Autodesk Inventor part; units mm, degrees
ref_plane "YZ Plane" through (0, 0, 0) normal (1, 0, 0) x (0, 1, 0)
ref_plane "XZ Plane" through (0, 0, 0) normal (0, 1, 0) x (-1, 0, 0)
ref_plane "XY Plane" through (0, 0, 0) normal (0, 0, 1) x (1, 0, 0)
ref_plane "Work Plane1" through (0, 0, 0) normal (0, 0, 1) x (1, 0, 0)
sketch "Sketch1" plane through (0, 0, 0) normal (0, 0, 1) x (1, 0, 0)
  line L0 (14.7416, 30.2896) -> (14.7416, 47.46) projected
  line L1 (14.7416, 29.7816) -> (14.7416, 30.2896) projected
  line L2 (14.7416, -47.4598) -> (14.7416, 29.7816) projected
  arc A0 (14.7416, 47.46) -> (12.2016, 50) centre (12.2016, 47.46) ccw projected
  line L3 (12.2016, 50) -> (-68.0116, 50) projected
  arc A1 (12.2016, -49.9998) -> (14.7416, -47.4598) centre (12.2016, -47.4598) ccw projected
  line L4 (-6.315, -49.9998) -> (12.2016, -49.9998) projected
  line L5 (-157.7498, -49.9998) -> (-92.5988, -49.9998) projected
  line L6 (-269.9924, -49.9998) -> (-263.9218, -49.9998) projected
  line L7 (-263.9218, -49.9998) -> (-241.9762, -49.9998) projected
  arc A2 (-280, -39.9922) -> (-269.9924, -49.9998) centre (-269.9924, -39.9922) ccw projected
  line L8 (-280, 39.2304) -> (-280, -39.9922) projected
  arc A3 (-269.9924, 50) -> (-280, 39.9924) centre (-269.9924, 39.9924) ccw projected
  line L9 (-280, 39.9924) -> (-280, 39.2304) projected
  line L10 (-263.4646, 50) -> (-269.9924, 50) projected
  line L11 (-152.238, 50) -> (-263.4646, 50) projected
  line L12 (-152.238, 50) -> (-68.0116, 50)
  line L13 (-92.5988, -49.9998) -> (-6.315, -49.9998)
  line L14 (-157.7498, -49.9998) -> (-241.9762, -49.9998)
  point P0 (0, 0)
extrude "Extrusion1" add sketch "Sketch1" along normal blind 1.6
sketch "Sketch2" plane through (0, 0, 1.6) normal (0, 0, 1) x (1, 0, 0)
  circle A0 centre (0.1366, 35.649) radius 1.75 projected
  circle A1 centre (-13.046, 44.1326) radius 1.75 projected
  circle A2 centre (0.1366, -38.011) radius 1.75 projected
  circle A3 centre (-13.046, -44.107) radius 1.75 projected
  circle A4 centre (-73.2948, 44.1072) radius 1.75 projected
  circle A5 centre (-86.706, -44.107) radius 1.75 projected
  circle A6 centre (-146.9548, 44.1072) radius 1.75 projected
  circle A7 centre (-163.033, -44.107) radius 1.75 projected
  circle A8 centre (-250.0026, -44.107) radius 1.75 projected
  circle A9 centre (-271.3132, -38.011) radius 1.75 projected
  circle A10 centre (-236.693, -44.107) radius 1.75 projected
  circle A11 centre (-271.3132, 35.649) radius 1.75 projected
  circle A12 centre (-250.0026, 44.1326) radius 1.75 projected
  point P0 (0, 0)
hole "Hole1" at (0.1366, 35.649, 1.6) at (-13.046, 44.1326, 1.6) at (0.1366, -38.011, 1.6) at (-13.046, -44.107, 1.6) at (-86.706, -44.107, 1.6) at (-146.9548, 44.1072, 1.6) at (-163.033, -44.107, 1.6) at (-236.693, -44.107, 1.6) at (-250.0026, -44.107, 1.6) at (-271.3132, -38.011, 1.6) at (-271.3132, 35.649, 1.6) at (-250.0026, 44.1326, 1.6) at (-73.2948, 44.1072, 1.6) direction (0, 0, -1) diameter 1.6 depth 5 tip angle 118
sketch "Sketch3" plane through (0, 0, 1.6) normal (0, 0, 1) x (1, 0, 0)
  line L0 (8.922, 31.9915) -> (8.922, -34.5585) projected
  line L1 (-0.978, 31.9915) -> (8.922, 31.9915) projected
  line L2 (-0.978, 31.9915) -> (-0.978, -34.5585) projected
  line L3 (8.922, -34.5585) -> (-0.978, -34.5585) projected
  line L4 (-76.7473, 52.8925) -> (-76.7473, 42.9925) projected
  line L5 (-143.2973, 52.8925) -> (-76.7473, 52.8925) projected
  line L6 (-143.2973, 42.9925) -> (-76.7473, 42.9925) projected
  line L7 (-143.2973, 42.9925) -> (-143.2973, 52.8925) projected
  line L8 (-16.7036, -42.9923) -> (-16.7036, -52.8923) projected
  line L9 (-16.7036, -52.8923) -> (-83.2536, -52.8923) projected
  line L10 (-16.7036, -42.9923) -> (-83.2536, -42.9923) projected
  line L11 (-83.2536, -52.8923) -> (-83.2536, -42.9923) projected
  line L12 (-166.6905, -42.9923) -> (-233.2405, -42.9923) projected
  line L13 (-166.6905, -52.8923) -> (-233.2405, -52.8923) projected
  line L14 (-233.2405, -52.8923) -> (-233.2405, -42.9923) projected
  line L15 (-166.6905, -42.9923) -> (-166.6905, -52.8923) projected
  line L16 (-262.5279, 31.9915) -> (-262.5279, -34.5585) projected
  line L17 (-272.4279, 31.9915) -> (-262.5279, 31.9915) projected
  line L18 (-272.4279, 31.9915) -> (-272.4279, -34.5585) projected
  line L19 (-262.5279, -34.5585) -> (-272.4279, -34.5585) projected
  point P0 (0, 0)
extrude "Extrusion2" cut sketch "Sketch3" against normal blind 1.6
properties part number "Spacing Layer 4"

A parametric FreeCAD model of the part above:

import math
import FreeCAD as App
import Part
import Sketcher
Q = App.Units.Quantity


def add_polygon(sketch, points):
    """Adds a closed chain of lines whose ends are joined by coincident constraints."""
    first, n = sketch.GeometryCount, len(points)
    for a, b in zip(points, points[1:] + points[:1]):
        sketch.addGeometry(Part.LineSegment(App.Vector(*a, 0), App.Vector(*b, 0)), False)
    for i in range(n):
        sketch.addConstraint(Sketcher.Constraint("Coincident", first + i, 2, first + (i + 1) % n, 1))

doc = App.newDocument("Part")
body = doc.addObject("PartDesign::Body", "Body")

# Sketch on XY plane
sketch1 = body.newObject("Sketcher::SketchObject", "Sketch")
sketch1.AttachmentSupport = (doc.getObject("XY_Plane"), [""])
sketch1.MapMode = "FlatFace"
sketch1.addGeometry([
    Part.LineSegment(App.Vector(14.7, -47.5, 0), App.Vector(14.7, 47.5, 0)),  # 0
    Part.ArcOfCircle(Part.Circle(App.Vector(12.2, 47.5, 0), App.Vector(0, 0, 1), 2.5), math.radians(0), math.radians(90)),  # 1
    Part.LineSegment(App.Vector(12.2, 50, 0), App.Vector(-270, 50, 0)),  # 2
    Part.ArcOfCircle(Part.Circle(App.Vector(-270, 40, 0), App.Vector(0, 0, 1), 10), math.radians(90), math.radians(180)),  # 3
    Part.LineSegment(App.Vector(-280, 40, 0), App.Vector(-280, -40, 0)),  # 4
    Part.ArcOfCircle(Part.Circle(App.Vector(-270, -40, 0), App.Vector(0, 0, 1), 10), math.radians(180), math.radians(270)),  # 5
    Part.LineSegment(App.Vector(-270, -50, 0), App.Vector(12.2, -50, 0)),  # 6
    Part.ArcOfCircle(Part.Circle(App.Vector(12.2, -47.5, 0), App.Vector(0, 0, 1), 2.5), math.radians(-90), math.radians(0)),  # 7
], False)
sketch1.addConstraint([
    Sketcher.Constraint("Tangent", 0, 2, 1, 1),
    Sketcher.Constraint("Tangent", 1, 2, 2, 1),
    Sketcher.Constraint("Tangent", 2, 2, 3, 1),
    Sketcher.Constraint("Tangent", 3, 2, 4, 1),
    Sketcher.Constraint("Tangent", 4, 2, 5, 1),
    Sketcher.Constraint("Tangent", 5, 2, 6, 1),
    Sketcher.Constraint("Tangent", 6, 2, 7, 1),
    Sketcher.Constraint("Tangent", 7, 2, 0, 1),
    Sketcher.Constraint("Vertical", 0),
    Sketcher.Constraint("Horizontal", 2),
    Sketcher.Constraint("Vertical", 4),
    Sketcher.Constraint("Horizontal", 6),
    Sketcher.Constraint("Equal", 3, 5),
    Sketcher.Constraint("Equal", 1, 7),
    Sketcher.Constraint("Radius", 1, Q("0.1 in")),
    Sketcher.Constraint("Radius", 3, Q("0.394 in")),
    Sketcher.Constraint("DistanceX", 2, 2, 2, 1, Q("11.11 in")),
    Sketcher.Constraint("DistanceY", 0, 1, 0, 2, Q("3.737 in")),
    Sketcher.Constraint("DistanceY", -1, 1, 1, 3, Q("1.8685 in")),
    Sketcher.Constraint("DistanceX", -1, 1, 1, 3, Q("12.2016 mm")),
])
pad1 = body.newObject("PartDesign::Pad", "Pad")
pad1.Profile = sketch1
pad1.Length = Q("0.0629921 in")

# Sketch on XY plane
sketch2 = body.newObject("Sketcher::SketchObject", "Sketch001")
sketch2.AttachmentSupport = (doc.getObject("XY_Plane"), [""])
sketch2.MapMode = "FlatFace"
sketch2.AttachmentOffset = App.Placement(App.Vector(0, 0, 0.0629921 * 25.4), App.Rotation())
sketch2.addGeometry([
    Part.Circle(App.Vector(0.1, 35.6, 0), App.Vector(0, 0, 1), 0.8),  # 0
    Part.Circle(App.Vector(-13, 44.1, 0), App.Vector(0, 0, 1), 0.8),  # 1
    Part.Circle(App.Vector(0.1, -38, 0), App.Vector(0, 0, 1), 0.8),  # 2
    Part.Circle(App.Vector(-13, -44.1, 0), App.Vector(0, 0, 1), 0.8),  # 3
    Part.Circle(App.Vector(-86.7, -44.1, 0), App.Vector(0, 0, 1), 0.8),  # 4
    Part.Circle(App.Vector(-147, 44.1, 0), App.Vector(0, 0, 1), 0.8),  # 5
    Part.Circle(App.Vector(-163, -44.1, 0), App.Vector(0, 0, 1), 0.8),  # 6
    Part.Circle(App.Vector(-236.7, -44.1, 0), App.Vector(0, 0, 1), 0.8),  # 7
    Part.Circle(App.Vector(-250, -44.1, 0), App.Vector(0, 0, 1), 0.8),  # 8
    Part.Circle(App.Vector(-271.3, -38, 0), App.Vector(0, 0, 1), 0.8),  # 9
    Part.Circle(App.Vector(-271.3, 35.6, 0), App.Vector(0, 0, 1), 0.8),  # 10
    Part.Circle(App.Vector(-250, 44.1, 0), App.Vector(0, 0, 1), 0.8),  # 11
    Part.Circle(App.Vector(-73.3, 44.1, 0), App.Vector(0, 0, 1), 0.8),  # 12
], False)
sketch2.addConstraint([
    Sketcher.Constraint("Equal", 0, 1),
    Sketcher.Constraint("Equal", 1, 2),
    Sketcher.Constraint("Equal", 2, 3),
    Sketcher.Constraint("Equal", 3, 4),
    Sketcher.Constraint("Equal", 4, 5),
    Sketcher.Constraint("Equal", 5, 6),
    Sketcher.Constraint("Equal", 6, 7),
    Sketcher.Constraint("Equal", 7, 8),
    Sketcher.Constraint("Equal", 8, 9),
    Sketcher.Constraint("Equal", 9, 10),
    Sketcher.Constraint("Equal", 10, 11),
    Sketcher.Constraint("Equal", 11, 12),
    Sketcher.Constraint("Horizontal", 3, 3, 4, 3),
    Sketcher.Constraint("Horizontal", 4, 3, 6, 3),
    Sketcher.Constraint("Horizontal", 6, 3, 7, 3),
    Sketcher.Constraint("Horizontal", 7, 3, 8, 3),
    Sketcher.Constraint("Horizontal", 2, 3, 9, 3),
    Sketcher.Constraint("Horizontal", 0, 3, 10, 3),
    Sketcher.Constraint("Horizontal", 1, 3, 11, 3),
    Sketcher.Constraint("Horizontal", 5, 3, 12, 3),
    Sketcher.Constraint("Vertical", 0, 3, 2, 3),
    Sketcher.Constraint("Vertical", 1, 3, 3, 3),
    Sketcher.Constraint("Vertical", 9, 3, 10, 3),
    Sketcher.Constraint("Vertical", 8, 3, 11, 3),
    Sketcher.Constraint("Diameter", 0, Q("0.063 in")),
    Sketcher.Constraint("DistanceY", 2, 3, 0, 3, Q("2.9 in")),
    Sketcher.Constraint("DistanceX", 4, 3, 3, 3, Q("2.9 in")),
    Sketcher.Constraint("DistanceX", 7, 3, 6, 3, Q("2.9 in")),
    Sketcher.Constraint("DistanceX", 5, 3, 12, 3, Q("2.9 in")),
    Sketcher.Constraint("DistanceY", 3, 3, 2, 3, Q("0.24 in")),
    Sketcher.Constraint("DistanceX", 1, 3, 0, 3, Q("0.519 in")),
    Sketcher.Constraint("DistanceY", 0, 3, 1, 3, Q("0.334 in")),
    Sketcher.Constraint("DistanceX", 5, 3, 4, 3, Q("2.372 in")),
    Sketcher.Constraint("DistanceY", 4, 3, 5, 3, Q("3.473 in")),
    Sketcher.Constraint("DistanceX", 6, 3, 4, 3, Q("3.005 in")),
    Sketcher.Constraint("DistanceX", 8, 3, 7, 3, Q("0.524 in")),
    Sketcher.Constraint("DistanceX", 9, 3, 8, 3, Q("0.839 in")),
    Sketcher.Constraint("DistanceY", -1, 1, 0, 3, Q("1.4035 in")),
    Sketcher.Constraint("DistanceX", -1, 1, 0, 3, Q("0.1366 mm")),
])
doc.recompute()
hole = body.newObject("PartDesign::Hole", "Hole")
hole.Profile = sketch2
hole.ThreadType = "None"
hole.Diameter = Q("0.0629921 in")
hole.DepthType = "Dimension"
hole.Depth = 5
hole.DrillPoint = "Angled"
hole.DrillPointAngle = 118

# Sketch on XY plane
sketch3 = body.newObject("Sketcher::SketchObject", "Sketch002")
sketch3.AttachmentSupport = (doc.getObject("XY_Plane"), [""])
sketch3.MapMode = "FlatFace"
sketch3.AttachmentOffset = App.Placement(App.Vector(0, 0, 0.0629921 * 25.4), App.Rotation())
add_polygon(sketch3, [(9, -35), (9, 32), (-1, 32), (-1, -35)])  # lines 0-3
add_polygon(sketch3, [(-77, 43), (-77, 53), (-143, 53), (-143, 43)])  # lines 4-7
add_polygon(sketch3, [(-17, -53), (-17, -43), (-83, -43), (-83, -53)])  # lines 8-11
add_polygon(sketch3, [(-167, -53), (-167, -43), (-233, -43), (-233, -53)])  # lines 12-15
add_polygon(sketch3, [(-263, -35), (-263, 32), (-272, 32), (-272, -35)])  # lines 16-19
sketch3.addConstraint([
    Sketcher.Constraint("Vertical", 0),
    Sketcher.Constraint("Horizontal", 1),
    Sketcher.Constraint("Vertical", 2),
    Sketcher.Constraint("Horizontal", 3),
    Sketcher.Constraint("Vertical", 4),
    Sketcher.Constraint("Horizontal", 5),
    Sketcher.Constraint("Vertical", 6),
    Sketcher.Constraint("Horizontal", 7),
    Sketcher.Constraint("Vertical", 8),
    Sketcher.Constraint("Horizontal", 9),
    Sketcher.Constraint("Vertical", 10),
    Sketcher.Constraint("Horizontal", 11),
    Sketcher.Constraint("Vertical", 12),
    Sketcher.Constraint("Horizontal", 13),
    Sketcher.Constraint("Vertical", 14),
    Sketcher.Constraint("Horizontal", 15),
    Sketcher.Constraint("Vertical", 16),
    Sketcher.Constraint("Horizontal", 17),
    Sketcher.Constraint("Vertical", 18),
    Sketcher.Constraint("Horizontal", 19),
    Sketcher.Constraint("Horizontal", 9, 2, 12, 2),
    Sketcher.Constraint("Horizontal", 11, 2, 14, 2),
    Sketcher.Constraint("Horizontal", 1, 2, 16, 2),
    Sketcher.Constraint("Horizontal", 3, 2, 18, 2),
    Sketcher.Constraint("Equal", 7, 9),
    Sketcher.Constraint("Equal", 11, 13),
    Sketcher.Constraint("Equal", 3, 17),
    Sketcher.Constraint("Equal", 15, 0),
    Sketcher.Constraint("Equal", 19, 4),
    Sketcher.Constraint("Equal", 6, 8),
    Sketcher.Constraint("DistanceY", 9, 2, 4, 2, Q("3.775 in")),
    Sketcher.Constraint("DistanceX", 12, 2, 6, 2, Q("0.921 in")),
    Sketcher.Constraint("DistanceX", 13, 2, 9, 2, Q("5.905 in")),
    Sketcher.Constraint("DistanceX", 1, 2, 1, 1, Q("9.9 mm")),
    Sketcher.Constraint("DistanceX", 5, 2, 5, 1, Q("66.55 mm")),
    Sketcher.Constraint("DistanceY", -1, 1, 0, 2, Q("1.2595 in")),
    Sketcher.Constraint("DistanceX", 1, 2, -1, 1, Q("0.0385 in")),
    Sketcher.Constraint("DistanceY", 8, 2, -1, 1, Q("1.6926 in")),
    Sketcher.Constraint("DistanceX", 9, 2, -1, 1, Q("3.2777 in")),
    Sketcher.Constraint("DistanceX", 17, 2, -1, 1, Q("10.7255 in")),
])
pocket1 = body.newObject("PartDesign::Pocket", "Pocket")
pocket1.Profile = sketch3
pocket1.Length = Q("0.0629921 in")

doc.recompute()
